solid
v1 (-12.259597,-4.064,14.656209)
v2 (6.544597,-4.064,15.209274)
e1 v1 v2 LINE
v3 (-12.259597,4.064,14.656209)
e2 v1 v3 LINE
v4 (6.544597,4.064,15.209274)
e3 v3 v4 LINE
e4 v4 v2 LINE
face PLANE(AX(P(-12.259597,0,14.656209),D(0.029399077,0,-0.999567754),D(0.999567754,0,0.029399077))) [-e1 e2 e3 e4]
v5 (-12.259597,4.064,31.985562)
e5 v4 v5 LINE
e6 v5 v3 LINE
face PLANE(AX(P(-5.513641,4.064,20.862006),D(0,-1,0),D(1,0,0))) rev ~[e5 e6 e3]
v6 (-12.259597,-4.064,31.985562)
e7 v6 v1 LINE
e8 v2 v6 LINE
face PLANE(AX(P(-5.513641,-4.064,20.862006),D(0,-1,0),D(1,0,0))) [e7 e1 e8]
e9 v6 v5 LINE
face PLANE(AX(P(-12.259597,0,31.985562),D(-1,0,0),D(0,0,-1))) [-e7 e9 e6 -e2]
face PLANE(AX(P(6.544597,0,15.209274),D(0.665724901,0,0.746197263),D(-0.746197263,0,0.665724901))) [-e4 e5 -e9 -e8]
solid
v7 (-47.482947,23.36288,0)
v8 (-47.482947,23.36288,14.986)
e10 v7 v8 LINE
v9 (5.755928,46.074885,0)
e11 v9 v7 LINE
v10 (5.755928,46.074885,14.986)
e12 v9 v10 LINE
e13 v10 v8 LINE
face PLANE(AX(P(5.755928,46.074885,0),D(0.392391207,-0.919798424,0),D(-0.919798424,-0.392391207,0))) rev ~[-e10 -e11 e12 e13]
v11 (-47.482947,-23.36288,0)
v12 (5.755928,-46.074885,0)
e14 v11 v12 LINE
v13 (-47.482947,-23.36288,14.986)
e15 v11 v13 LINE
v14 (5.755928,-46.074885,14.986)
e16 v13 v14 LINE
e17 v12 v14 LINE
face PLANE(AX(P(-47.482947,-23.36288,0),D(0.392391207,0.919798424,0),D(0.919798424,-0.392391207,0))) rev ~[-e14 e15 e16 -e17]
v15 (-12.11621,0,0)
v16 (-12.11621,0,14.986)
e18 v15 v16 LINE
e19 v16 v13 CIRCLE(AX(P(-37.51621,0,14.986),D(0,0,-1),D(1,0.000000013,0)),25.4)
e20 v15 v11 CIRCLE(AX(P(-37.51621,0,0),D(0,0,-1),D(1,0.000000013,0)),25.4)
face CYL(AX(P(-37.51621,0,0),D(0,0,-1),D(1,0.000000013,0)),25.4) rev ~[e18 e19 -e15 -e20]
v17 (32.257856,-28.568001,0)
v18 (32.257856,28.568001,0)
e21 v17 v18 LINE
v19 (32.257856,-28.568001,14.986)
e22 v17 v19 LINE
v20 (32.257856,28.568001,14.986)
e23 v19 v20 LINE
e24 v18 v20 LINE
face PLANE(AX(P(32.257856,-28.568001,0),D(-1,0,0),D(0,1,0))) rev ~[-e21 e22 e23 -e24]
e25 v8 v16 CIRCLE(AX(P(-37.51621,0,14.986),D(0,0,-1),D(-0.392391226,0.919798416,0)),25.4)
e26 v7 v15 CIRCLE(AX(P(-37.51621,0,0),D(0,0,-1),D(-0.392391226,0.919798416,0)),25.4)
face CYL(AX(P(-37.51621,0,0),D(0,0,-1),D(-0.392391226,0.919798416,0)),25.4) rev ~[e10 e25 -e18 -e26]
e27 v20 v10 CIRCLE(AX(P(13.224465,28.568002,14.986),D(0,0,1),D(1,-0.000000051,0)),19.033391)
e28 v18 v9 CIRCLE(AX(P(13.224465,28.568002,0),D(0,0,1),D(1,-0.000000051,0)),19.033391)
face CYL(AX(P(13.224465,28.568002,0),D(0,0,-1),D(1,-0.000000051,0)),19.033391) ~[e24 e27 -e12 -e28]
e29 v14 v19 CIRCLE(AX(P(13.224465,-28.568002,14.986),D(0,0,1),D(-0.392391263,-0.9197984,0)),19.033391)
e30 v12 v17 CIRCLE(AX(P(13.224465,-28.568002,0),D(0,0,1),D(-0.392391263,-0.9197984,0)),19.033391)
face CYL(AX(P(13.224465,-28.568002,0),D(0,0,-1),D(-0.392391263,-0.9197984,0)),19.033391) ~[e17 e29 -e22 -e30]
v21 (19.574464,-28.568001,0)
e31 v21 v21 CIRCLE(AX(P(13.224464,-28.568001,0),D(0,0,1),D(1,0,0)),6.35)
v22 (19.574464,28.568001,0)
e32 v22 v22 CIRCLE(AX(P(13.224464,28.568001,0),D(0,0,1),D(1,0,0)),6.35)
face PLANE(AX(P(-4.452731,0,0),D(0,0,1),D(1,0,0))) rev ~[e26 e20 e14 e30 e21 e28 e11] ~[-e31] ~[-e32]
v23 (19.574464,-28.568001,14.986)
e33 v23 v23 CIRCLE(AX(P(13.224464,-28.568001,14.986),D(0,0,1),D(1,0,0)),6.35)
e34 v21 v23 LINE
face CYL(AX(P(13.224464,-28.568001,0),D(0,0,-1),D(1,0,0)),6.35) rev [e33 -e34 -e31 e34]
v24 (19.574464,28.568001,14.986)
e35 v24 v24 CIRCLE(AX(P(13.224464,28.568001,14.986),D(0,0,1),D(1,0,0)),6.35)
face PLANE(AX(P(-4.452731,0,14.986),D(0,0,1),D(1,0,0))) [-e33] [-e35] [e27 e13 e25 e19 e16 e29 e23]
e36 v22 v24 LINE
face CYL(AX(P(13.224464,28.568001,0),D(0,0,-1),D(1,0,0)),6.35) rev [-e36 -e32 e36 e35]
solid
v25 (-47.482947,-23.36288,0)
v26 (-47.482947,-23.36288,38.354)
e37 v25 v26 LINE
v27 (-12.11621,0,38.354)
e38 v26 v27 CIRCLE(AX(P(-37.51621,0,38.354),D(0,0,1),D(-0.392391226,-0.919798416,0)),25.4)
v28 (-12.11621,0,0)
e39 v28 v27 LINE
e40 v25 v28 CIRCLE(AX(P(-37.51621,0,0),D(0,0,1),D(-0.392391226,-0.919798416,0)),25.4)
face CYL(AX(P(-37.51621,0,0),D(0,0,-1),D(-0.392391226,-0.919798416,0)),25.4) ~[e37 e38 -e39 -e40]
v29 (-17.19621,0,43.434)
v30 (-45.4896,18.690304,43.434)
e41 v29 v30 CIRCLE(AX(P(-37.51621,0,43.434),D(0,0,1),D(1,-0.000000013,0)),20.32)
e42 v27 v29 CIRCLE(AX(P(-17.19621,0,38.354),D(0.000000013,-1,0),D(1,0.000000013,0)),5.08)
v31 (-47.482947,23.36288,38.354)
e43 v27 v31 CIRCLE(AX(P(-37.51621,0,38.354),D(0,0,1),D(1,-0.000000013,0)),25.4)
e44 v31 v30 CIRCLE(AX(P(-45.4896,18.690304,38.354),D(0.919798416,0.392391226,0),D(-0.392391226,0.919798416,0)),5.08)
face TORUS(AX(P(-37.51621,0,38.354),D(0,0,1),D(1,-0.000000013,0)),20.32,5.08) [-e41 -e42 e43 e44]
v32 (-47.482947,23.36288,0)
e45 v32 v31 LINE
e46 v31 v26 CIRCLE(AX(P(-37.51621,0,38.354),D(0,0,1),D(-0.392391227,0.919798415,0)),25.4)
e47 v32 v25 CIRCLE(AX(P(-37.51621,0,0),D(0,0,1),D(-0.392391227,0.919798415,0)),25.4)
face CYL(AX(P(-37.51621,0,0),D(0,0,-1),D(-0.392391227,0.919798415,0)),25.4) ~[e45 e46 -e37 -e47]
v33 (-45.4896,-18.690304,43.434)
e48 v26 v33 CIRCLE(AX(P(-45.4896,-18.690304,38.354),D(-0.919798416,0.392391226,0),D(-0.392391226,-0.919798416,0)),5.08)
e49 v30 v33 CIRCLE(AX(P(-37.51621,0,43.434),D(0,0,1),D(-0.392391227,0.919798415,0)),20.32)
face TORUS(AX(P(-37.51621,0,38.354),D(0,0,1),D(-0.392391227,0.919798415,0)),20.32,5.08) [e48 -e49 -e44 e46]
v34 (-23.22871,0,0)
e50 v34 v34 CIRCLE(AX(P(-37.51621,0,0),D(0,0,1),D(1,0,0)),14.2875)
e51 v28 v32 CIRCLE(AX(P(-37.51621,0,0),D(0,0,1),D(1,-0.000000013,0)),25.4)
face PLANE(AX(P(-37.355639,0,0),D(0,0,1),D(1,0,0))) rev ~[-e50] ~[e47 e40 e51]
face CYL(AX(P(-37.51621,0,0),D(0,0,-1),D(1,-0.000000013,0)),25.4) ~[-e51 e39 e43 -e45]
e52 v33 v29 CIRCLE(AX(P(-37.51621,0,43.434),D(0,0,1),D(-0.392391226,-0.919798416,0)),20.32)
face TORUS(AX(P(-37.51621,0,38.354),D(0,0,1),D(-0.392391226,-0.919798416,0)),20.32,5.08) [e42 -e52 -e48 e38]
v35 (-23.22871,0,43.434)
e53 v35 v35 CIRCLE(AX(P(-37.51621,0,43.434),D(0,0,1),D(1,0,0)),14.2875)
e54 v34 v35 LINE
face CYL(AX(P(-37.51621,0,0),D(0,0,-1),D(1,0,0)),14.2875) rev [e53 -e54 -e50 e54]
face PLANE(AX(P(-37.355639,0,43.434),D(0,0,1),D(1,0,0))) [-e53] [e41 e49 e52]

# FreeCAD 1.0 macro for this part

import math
import FreeCAD as App
import Part
import Sketcher

V = App.Vector
Q = App.Units.Quantity


def edges_at(feature, points):
    """Names of the edges that pass closest to the given points."""
    edges = feature.Shape.Edges
    near = lambda p: min(range(len(edges)), key=lambda i: edges[i].distToShape(Part.Vertex(*p))[0])
    return sorted({f"Edge{near(p) + 1}" for p in points})

doc = App.newDocument("Part")
body = doc.addObject("PartDesign::Body", "Body")

# Sketch on XY plane
sketch1 = body.newObject("Sketcher::SketchObject", "Sketch")
sketch1.AttachmentSupport = (doc.getObject("XY_Plane"), [""])
sketch1.MapMode = "FlatFace"
sketch1.addGeometry([
    Part.ArcOfCircle(Part.Circle(V(-38, 0, 0), V(0, 0, 1), 25), math.radians(0), math.radians(113)),
    Part.ArcOfCircle(Part.Circle(V(-38, 0, 0), V(0, 0, 1), 25), math.radians(113), math.radians(247)),
    Part.ArcOfCircle(Part.Circle(V(-38, 0, 0), V(0, 0, 1), 25), math.radians(-113), math.radians(0)),
    Part.Circle(V(-38, 0, 0), V(0, 0, 1), 14),
], False)
sketch1.addConstraint([
    Sketcher.Constraint("Tangent", 0, 2, 1, 1),
    Sketcher.Constraint("Tangent", 1, 2, 2, 1),
    Sketcher.Constraint("Tangent", 2, 2, 0, 1),
    Sketcher.Constraint("Coincident", 3, 3, 0, 3),
    Sketcher.Constraint("Symmetric", 0, 2, 1, 2, -1),
    Sketcher.Constraint("PointOnObject", 2, 2, -1),
    Sketcher.Constraint("Radius", 0, Q("1 in")),
    Sketcher.Constraint("Diameter", 3, Q("1.125 in")),
    Sketcher.Constraint("DistanceX", 0, 3, -1, 1, 37.51621),
    Sketcher.Constraint("DistanceY", -1, 1, 0, 2, 23.36288),
])
pad1 = body.newObject("PartDesign::Pad", "Pad")
pad1.Profile = sketch1
pad1.Length = Q("1.71 in")
doc.recompute()

fillet = body.newObject("PartDesign::Fillet", "Fillet")
fillet.Base = (pad1, edges_at(pad1, [(-23.516, -21.193, 43.434)]))
fillet.Radius = Q("0.2 in")
body2 = doc.addObject("PartDesign::Body", "Body001")

# Sketch on XY plane
sketch2 = body2.newObject("Sketcher::SketchObject", "Sketch001")
sketch2.AttachmentSupport = (doc.getObject("XY_Plane001"), [""])
sketch2.MapMode = "FlatFace"
sketch2.addGeometry([
    Part.LineSegment(V(32, -29, 0), V(32, 29, 0)),  # 0
    Part.ArcOfCircle(Part.Circle(V(13, 29, 0), V(0, 0, 1), 19), math.radians(0), math.radians(113)),  # 1
    Part.LineSegment(V(6, 46, 0), V(-47, 23, 0)),  # 2
    Part.ArcOfCircle(Part.Circle(V(-38, 0, 0), V(0, 0, 1), 25), math.radians(0), math.radians(113)),  # 3
    Part.ArcOfCircle(Part.Circle(V(-38, 0, 0), V(0, 0, 1), 25), math.radians(-113), math.radians(0)),  # 4
    Part.LineSegment(V(-47, -23, 0), V(6, -46, 0)),  # 5
    Part.ArcOfCircle(Part.Circle(V(13, -29, 0), V(0, 0, 1), 19), math.radians(-113), math.radians(0)),  # 6
    Part.Circle(V(13, -29, 0), V(0, 0, 1), 6),  # 7
    Part.Circle(V(13, 29, 0), V(0, 0, 1), 6),  # 8
], False)
sketch2.addConstraint([
    Sketcher.Constraint("Tangent", 0, 2, 1, 1),
    Sketcher.Constraint("Tangent", 1, 2, 2, 1),
    Sketcher.Constraint("Tangent", 2, 2, 3, 2),
    Sketcher.Constraint("Tangent", 3, 1, 4, 2),
    Sketcher.Constraint("Tangent", 4, 1, 5, 1),
    Sketcher.Constraint("Tangent", 5, 2, 6, 1),
    Sketcher.Constraint("Tangent", 6, 2, 0, 1),
    Sketcher.Constraint("Vertical", 0),
    Sketcher.Constraint("Coincident", 7, 3, 6, 3),
    Sketcher.Constraint("Coincident", 8, 3, 1, 3),
    Sketcher.Constraint("Equal", 3, 4),
    Sketcher.Constraint("Equal", 1, 6),
    Sketcher.Constraint("Equal", 7, 8),
    Sketcher.Constraint("Symmetric", 2, 2, 4, 1, -1),
    Sketcher.Constraint("PointOnObject", 3, 1, -1),
    Sketcher.Constraint("Radius", 3, Q("1 in")),
    Sketcher.Constraint("Diameter", 7, Q("0.5 in")),
    Sketcher.Constraint("Radius", 1, 19.033391),
    Sketcher.Constraint("DistanceY", 0, 1, 0, 2, 57.136002),
    Sketcher.Constraint("DistanceX", 3, 3, -1, 1, 37.51621),
    Sketcher.Constraint("DistanceY", -1, 1, 2, 2, 23.36288),
])
pad2 = body2.newObject("PartDesign::Pad", "Pad001")
pad2.Profile = sketch2
pad2.Length = Q("0.59 in")
body3 = doc.addObject("PartDesign::Body", "Body002")

# Sketch on XZ plane
sketch3 = body3.newObject("Sketcher::SketchObject", "Sketch002")
sketch3.AttachmentSupport = (doc.getObject("XZ_Plane002"), [""])
sketch3.MapMode = "FlatFace"
sketch3.addGeometry([
    Part.LineSegment(V(-12, 15, 0), V(7, 15, 0)),
    Part.LineSegment(V(7, 15, 0), V(-12, 32, 0)),
    Part.LineSegment(V(-12, 32, 0), V(-12, 15, 0)),
], False)
sketch3.addConstraint([
    Sketcher.Constraint("Coincident", 0, 2, 1, 1),
    Sketcher.Constraint("Coincident", 1, 2, 2, 1),
    Sketcher.Constraint("Coincident", 2, 2, 0, 1),
    Sketcher.Constraint("Vertical", 2),
    Sketcher.Constraint("Distance", 1, 25.200031),
    Sketcher.Constraint("DistanceY", 2, 2, 2, 1, 17.329353),
    Sketcher.Constraint("DistanceY", -1, 1, 2, 2, 14.656209),
    Sketcher.Constraint("DistanceY", 0, 2, 1, 2, 16.776288),
    Sketcher.Constraint("DistanceX", -1, 1, 0, 2, 6.544597),
])
pad3 = body3.newObject("PartDesign::Pad", "Pad002")
pad3.Profile = sketch3
pad3.Length = Q("0.32 in")
pad3.Midplane = True

doc.recompute()
